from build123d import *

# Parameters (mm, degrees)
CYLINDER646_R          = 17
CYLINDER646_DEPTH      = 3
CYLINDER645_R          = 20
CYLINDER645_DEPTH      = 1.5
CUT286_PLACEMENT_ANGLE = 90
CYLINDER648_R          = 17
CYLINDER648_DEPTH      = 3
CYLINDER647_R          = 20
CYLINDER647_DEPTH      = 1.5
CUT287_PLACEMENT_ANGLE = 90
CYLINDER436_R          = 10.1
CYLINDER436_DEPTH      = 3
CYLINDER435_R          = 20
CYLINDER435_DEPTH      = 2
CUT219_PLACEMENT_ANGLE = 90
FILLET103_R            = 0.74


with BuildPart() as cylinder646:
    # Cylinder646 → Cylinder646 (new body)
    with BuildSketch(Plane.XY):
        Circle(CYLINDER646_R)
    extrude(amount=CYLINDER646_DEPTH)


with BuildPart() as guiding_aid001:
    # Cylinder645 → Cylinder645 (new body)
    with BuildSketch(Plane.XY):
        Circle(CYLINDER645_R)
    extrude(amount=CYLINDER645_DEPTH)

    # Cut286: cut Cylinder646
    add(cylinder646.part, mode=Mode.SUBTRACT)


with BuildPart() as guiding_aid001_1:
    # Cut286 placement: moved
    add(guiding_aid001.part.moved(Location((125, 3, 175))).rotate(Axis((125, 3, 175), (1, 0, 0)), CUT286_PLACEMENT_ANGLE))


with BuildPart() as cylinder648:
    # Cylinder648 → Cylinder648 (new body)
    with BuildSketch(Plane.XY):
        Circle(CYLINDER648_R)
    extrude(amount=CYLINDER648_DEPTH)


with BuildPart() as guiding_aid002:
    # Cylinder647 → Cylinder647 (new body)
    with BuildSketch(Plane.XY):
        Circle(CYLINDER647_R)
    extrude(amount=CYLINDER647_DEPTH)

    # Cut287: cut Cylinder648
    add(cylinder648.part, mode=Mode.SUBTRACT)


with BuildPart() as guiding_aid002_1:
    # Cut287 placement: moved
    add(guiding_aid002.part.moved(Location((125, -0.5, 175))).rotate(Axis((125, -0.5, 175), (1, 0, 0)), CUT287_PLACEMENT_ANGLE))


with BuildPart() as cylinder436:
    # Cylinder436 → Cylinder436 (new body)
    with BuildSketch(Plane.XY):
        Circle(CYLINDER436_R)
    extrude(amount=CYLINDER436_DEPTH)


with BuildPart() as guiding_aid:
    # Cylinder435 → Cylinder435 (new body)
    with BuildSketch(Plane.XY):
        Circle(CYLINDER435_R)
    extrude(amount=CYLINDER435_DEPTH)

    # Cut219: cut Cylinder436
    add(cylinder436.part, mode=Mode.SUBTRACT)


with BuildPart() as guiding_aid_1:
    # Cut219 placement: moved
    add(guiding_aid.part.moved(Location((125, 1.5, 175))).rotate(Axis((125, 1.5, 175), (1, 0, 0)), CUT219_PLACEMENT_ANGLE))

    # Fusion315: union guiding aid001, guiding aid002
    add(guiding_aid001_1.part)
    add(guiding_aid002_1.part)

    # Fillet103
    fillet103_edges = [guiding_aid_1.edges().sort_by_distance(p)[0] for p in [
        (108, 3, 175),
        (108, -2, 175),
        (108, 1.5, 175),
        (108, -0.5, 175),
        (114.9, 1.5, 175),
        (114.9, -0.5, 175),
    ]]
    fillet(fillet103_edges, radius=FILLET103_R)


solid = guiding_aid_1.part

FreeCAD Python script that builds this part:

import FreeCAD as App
import Part
import Sketcher

V = App.Vector
Q = App.Units.Quantity


def edges_at(feature, points):
    """Names of the edges that pass closest to the given points."""
    edges = feature.Shape.Edges
    near = lambda p: min(range(len(edges)), key=lambda i: edges[i].distToShape(Part.Vertex(*p))[0])
    return sorted({f"Edge{near(p) + 1}" for p in points})

doc = App.newDocument("Part")
body = doc.addObject("PartDesign::Body", "Body")

# Sketch on XY plane
sketch1 = body.newObject("Sketcher::SketchObject", "Sketch")
sketch1.AttachmentSupport = (doc.getObject("XY_Plane"), [""])
sketch1.MapMode = "FlatFace"
sketch1.addGeometry(Part.Circle(V(0, 0, 0), V(0, 0, 1), 17), False)
sketch1.addConstraint([
    Sketcher.Constraint("Coincident", 0, 3, -1, 1),
    Sketcher.Constraint("Diameter", 0, Q("34 mm")),
])
pad1 = body.newObject("PartDesign::Pad", "Pad")
pad1.Profile = sketch1
pad1.Length = 3
body2 = doc.addObject("PartDesign::Body", "Body001")

# Sketch on XY plane
sketch2 = body2.newObject("Sketcher::SketchObject", "Sketch001")
sketch2.AttachmentSupport = (doc.getObject("XY_Plane001"), [""])
sketch2.MapMode = "FlatFace"
sketch2.addGeometry(Part.Circle(V(0, 0, 0), V(0, 0, 1), 20), False)
sketch2.addConstraint([
    Sketcher.Constraint("Coincident", 0, 3, -1, 1),
    Sketcher.Constraint("Diameter", 0, Q("40 mm")),
])
pad2 = body2.newObject("PartDesign::Pad", "Pad001")
pad2.Profile = sketch2
pad2.Length = 1.5
doc.recompute()

boolean = body2.newObject("PartDesign::Boolean", "Boolean")
boolean.Type = "Cut"
boolean.addObjects([body])
body3 = doc.addObject("PartDesign::Body", "Body002")
doc.recompute()

body2.Placement = App.Placement(V(125, 3, 175), App.Rotation(V(1, 0, 0), 90))
boolean2 = body3.newObject("PartDesign::Boolean", "Boolean001")
boolean2.Type = "Fuse"
boolean2.addObjects([body2])
body4 = doc.addObject("PartDesign::Body", "Body003")

# Sketch on XY plane
sketch3 = body4.newObject("Sketcher::SketchObject", "Sketch002")
sketch3.AttachmentSupport = (doc.getObject("XY_Plane003"), [""])
sketch3.MapMode = "FlatFace"
sketch3.addGeometry(Part.Circle(V(0, 0, 0), V(0, 0, 1), 17), False)
sketch3.addConstraint([
    Sketcher.Constraint("Coincident", 0, 3, -1, 1),
    Sketcher.Constraint("Diameter", 0, Q("34 mm")),
])
pad3 = body4.newObject("PartDesign::Pad", "Pad002")
pad3.Profile = sketch3
pad3.Length = 3
body5 = doc.addObject("PartDesign::Body", "Body004")

# Sketch on XY plane
sketch4 = body5.newObject("Sketcher::SketchObject", "Sketch003")
sketch4.AttachmentSupport = (doc.getObject("XY_Plane004"), [""])
sketch4.MapMode = "FlatFace"
sketch4.addGeometry(Part.Circle(V(0, 0, 0), V(0, 0, 1), 20), False)
sketch4.addConstraint([
    Sketcher.Constraint("Coincident", 0, 3, -1, 1),
    Sketcher.Constraint("Diameter", 0, Q("40 mm")),
])
pad4 = body5.newObject("PartDesign::Pad", "Pad003")
pad4.Profile = sketch4
pad4.Length = 1.5
doc.recompute()

boolean3 = body5.newObject("PartDesign::Boolean", "Boolean002")
boolean3.Type = "Cut"
boolean3.addObjects([body4])
body6 = doc.addObject("PartDesign::Body", "Body005")
doc.recompute()

body5.Placement = App.Placement(V(125, -0.5, 175), App.Rotation(V(1, 0, 0), 90))
boolean4 = body6.newObject("PartDesign::Boolean", "Boolean003")
boolean4.Type = "Fuse"
boolean4.addObjects([body5])
body7 = doc.addObject("PartDesign::Body", "Body006")

# Sketch on XY plane
sketch5 = body7.newObject("Sketcher::SketchObject", "Sketch004")
sketch5.AttachmentSupport = (doc.getObject("XY_Plane006"), [""])
sketch5.MapMode = "FlatFace"
sketch5.addGeometry(Part.Circle(V(0, 0, 0), V(0, 0, 1), 10), False)
sketch5.addConstraint([
    Sketcher.Constraint("Coincident", 0, 3, -1, 1),
    Sketcher.Constraint("Diameter", 0, Q("20.2 mm")),
])
pad5 = body7.newObject("PartDesign::Pad", "Pad004")
pad5.Profile = sketch5
pad5.Length = 3
body8 = doc.addObject("PartDesign::Body", "Body007")

# Sketch on XY plane
sketch6 = body8.newObject("Sketcher::SketchObject", "Sketch005")
sketch6.AttachmentSupport = (doc.getObject("XY_Plane007"), [""])
sketch6.MapMode = "FlatFace"
sketch6.addGeometry(Part.Circle(V(0, 0, 0), V(0, 0, 1), 20), False)
sketch6.addConstraint([
    Sketcher.Constraint("Coincident", 0, 3, -1, 1),
    Sketcher.Constraint("Diameter", 0, Q("40 mm")),
])
pad6 = body8.newObject("PartDesign::Pad", "Pad005")
pad6.Profile = sketch6
pad6.Length = 2
doc.recompute()

boolean5 = body8.newObject("PartDesign::Boolean", "Boolean004")
boolean5.Type = "Cut"
boolean5.addObjects([body7])
body9 = doc.addObject("PartDesign::Body", "Body008")
doc.recompute()

body8.Placement = App.Placement(V(125, 1.5, 175), App.Rotation(V(1, 0, 0), 90))
boolean6 = body9.newObject("PartDesign::Boolean", "Boolean005")
boolean6.Type = "Fuse"
boolean6.addObjects([body8])
doc.recompute()

boolean7 = body9.newObject("PartDesign::Boolean", "Boolean006")
boolean7.Type = "Fuse"
boolean7.addObjects([body3])
doc.recompute()

boolean8 = body9.newObject("PartDesign::Boolean", "Boolean007")
boolean8.Type = "Fuse"
boolean8.addObjects([body6])
doc.recompute()

fillet = body9.newObject("PartDesign::Fillet", "Fillet")
fillet.Base = (boolean8, edges_at(boolean8, [
    (108, 3, 175),
    (108, -2, 175),
    (108, 1.5, 175),
    (108, -0.5, 175),
    (114.9, 1.5, 175),
    (114.9, -0.5, 175),
]))
fillet.Radius = 0.74

doc.recompute()
